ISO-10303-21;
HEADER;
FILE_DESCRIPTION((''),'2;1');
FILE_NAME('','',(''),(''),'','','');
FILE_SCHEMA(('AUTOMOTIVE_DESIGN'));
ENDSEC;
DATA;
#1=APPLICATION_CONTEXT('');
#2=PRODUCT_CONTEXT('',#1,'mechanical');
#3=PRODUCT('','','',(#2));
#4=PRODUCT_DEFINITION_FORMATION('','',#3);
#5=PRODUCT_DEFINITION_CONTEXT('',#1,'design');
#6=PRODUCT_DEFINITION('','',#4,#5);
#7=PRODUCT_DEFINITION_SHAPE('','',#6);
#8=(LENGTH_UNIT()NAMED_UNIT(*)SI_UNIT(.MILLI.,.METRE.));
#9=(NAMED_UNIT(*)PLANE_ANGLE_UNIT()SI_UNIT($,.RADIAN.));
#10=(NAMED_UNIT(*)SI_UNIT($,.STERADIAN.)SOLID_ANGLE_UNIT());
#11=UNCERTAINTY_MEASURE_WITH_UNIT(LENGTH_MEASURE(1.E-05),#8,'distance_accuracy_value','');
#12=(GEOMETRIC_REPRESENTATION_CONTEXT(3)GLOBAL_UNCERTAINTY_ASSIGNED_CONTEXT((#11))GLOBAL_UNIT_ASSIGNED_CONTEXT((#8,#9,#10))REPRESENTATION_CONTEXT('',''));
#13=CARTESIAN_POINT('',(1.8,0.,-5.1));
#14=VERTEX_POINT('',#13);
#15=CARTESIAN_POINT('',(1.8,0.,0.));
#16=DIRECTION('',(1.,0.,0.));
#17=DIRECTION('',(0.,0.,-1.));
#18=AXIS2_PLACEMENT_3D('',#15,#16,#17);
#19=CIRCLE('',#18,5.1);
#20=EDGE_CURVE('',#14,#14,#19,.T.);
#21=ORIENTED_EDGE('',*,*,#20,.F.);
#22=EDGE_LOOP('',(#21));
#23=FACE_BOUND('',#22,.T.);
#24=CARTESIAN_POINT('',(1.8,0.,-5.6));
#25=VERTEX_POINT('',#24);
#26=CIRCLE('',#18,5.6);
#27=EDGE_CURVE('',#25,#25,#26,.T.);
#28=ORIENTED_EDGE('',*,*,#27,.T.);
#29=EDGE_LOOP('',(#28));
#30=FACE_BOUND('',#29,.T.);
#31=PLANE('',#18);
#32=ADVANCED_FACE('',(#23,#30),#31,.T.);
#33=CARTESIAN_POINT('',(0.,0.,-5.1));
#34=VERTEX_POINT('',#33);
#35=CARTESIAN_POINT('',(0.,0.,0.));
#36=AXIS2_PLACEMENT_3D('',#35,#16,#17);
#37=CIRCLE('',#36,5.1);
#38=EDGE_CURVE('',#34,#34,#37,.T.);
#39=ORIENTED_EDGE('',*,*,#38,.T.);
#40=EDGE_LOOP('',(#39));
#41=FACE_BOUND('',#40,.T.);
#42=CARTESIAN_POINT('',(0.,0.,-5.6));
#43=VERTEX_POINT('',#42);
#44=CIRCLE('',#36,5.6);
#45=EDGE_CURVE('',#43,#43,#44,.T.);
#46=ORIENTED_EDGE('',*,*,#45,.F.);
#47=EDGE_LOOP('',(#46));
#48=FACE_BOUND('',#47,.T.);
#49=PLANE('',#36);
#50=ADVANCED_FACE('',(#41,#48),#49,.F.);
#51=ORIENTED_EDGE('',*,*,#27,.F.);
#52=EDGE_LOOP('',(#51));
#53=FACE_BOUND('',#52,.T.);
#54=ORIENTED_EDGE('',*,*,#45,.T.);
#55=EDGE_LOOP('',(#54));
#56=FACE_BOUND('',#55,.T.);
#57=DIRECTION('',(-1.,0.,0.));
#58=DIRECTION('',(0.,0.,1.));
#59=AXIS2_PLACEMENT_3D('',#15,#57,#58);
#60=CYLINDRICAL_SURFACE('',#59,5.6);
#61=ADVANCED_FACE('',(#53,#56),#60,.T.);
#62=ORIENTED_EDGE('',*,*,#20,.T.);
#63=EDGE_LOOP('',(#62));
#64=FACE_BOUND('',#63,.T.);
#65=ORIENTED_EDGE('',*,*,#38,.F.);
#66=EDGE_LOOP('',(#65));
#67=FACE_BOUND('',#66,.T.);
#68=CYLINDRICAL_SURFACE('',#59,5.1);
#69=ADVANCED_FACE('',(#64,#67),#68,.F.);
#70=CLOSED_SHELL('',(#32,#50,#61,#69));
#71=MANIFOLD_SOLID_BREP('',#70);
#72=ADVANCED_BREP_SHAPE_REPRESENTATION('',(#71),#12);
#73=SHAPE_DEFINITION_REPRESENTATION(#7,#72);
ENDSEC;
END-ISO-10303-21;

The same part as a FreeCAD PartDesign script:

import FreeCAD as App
import Part
import Sketcher
Q = App.Units.Quantity

doc = App.newDocument("Part")
params = doc.addObject("Spreadsheet::Sheet", "Params")
for row, (alias, value) in enumerate([
    ("sketch1_diameter", "11.2 mm"),
    ("sketch1_diameter2", "10.2 mm"),
    ("pad1_length", "1.8 mm"),
], start=1):
    params.set(f"A{row}", alias)
    params.set(f"B{row}", "=" + value)
    params.setAlias(f"B{row}", alias)

body = doc.addObject("PartDesign::Body", "Body")

# Sketch on YZ plane
sketch1 = body.newObject("Sketcher::SketchObject", "Sketch")
sketch1.AttachmentSupport = (doc.getObject("YZ_Plane"), [""])
sketch1.MapMode = "FlatFace"
sketch1.addGeometry([
    Part.Circle(App.Vector(0, 0, 0), App.Vector(0, 0, 1), 6),
    Part.Circle(App.Vector(0, 0, 0), App.Vector(0, 0, 1), 5),
], False)
sketch1.addConstraint([
    Sketcher.Constraint("Coincident", 0, 3, -1, 1),
    Sketcher.Constraint("Coincident", 1, 3, -1, 1),
    Sketcher.Constraint("Diameter", 0, Q("11.2 mm")),
    Sketcher.Constraint("Diameter", 1, Q("10.2 mm")),
])
sketch1.setExpression("Constraints[2]", "Params.sketch1_diameter")
sketch1.setExpression("Constraints[3]", "Params.sketch1_diameter2")
pad1 = body.newObject("PartDesign::Pad", "Pad")
pad1.Profile = sketch1
pad1.setExpression("Length", "Params.pad1_length")

doc.recompute()
